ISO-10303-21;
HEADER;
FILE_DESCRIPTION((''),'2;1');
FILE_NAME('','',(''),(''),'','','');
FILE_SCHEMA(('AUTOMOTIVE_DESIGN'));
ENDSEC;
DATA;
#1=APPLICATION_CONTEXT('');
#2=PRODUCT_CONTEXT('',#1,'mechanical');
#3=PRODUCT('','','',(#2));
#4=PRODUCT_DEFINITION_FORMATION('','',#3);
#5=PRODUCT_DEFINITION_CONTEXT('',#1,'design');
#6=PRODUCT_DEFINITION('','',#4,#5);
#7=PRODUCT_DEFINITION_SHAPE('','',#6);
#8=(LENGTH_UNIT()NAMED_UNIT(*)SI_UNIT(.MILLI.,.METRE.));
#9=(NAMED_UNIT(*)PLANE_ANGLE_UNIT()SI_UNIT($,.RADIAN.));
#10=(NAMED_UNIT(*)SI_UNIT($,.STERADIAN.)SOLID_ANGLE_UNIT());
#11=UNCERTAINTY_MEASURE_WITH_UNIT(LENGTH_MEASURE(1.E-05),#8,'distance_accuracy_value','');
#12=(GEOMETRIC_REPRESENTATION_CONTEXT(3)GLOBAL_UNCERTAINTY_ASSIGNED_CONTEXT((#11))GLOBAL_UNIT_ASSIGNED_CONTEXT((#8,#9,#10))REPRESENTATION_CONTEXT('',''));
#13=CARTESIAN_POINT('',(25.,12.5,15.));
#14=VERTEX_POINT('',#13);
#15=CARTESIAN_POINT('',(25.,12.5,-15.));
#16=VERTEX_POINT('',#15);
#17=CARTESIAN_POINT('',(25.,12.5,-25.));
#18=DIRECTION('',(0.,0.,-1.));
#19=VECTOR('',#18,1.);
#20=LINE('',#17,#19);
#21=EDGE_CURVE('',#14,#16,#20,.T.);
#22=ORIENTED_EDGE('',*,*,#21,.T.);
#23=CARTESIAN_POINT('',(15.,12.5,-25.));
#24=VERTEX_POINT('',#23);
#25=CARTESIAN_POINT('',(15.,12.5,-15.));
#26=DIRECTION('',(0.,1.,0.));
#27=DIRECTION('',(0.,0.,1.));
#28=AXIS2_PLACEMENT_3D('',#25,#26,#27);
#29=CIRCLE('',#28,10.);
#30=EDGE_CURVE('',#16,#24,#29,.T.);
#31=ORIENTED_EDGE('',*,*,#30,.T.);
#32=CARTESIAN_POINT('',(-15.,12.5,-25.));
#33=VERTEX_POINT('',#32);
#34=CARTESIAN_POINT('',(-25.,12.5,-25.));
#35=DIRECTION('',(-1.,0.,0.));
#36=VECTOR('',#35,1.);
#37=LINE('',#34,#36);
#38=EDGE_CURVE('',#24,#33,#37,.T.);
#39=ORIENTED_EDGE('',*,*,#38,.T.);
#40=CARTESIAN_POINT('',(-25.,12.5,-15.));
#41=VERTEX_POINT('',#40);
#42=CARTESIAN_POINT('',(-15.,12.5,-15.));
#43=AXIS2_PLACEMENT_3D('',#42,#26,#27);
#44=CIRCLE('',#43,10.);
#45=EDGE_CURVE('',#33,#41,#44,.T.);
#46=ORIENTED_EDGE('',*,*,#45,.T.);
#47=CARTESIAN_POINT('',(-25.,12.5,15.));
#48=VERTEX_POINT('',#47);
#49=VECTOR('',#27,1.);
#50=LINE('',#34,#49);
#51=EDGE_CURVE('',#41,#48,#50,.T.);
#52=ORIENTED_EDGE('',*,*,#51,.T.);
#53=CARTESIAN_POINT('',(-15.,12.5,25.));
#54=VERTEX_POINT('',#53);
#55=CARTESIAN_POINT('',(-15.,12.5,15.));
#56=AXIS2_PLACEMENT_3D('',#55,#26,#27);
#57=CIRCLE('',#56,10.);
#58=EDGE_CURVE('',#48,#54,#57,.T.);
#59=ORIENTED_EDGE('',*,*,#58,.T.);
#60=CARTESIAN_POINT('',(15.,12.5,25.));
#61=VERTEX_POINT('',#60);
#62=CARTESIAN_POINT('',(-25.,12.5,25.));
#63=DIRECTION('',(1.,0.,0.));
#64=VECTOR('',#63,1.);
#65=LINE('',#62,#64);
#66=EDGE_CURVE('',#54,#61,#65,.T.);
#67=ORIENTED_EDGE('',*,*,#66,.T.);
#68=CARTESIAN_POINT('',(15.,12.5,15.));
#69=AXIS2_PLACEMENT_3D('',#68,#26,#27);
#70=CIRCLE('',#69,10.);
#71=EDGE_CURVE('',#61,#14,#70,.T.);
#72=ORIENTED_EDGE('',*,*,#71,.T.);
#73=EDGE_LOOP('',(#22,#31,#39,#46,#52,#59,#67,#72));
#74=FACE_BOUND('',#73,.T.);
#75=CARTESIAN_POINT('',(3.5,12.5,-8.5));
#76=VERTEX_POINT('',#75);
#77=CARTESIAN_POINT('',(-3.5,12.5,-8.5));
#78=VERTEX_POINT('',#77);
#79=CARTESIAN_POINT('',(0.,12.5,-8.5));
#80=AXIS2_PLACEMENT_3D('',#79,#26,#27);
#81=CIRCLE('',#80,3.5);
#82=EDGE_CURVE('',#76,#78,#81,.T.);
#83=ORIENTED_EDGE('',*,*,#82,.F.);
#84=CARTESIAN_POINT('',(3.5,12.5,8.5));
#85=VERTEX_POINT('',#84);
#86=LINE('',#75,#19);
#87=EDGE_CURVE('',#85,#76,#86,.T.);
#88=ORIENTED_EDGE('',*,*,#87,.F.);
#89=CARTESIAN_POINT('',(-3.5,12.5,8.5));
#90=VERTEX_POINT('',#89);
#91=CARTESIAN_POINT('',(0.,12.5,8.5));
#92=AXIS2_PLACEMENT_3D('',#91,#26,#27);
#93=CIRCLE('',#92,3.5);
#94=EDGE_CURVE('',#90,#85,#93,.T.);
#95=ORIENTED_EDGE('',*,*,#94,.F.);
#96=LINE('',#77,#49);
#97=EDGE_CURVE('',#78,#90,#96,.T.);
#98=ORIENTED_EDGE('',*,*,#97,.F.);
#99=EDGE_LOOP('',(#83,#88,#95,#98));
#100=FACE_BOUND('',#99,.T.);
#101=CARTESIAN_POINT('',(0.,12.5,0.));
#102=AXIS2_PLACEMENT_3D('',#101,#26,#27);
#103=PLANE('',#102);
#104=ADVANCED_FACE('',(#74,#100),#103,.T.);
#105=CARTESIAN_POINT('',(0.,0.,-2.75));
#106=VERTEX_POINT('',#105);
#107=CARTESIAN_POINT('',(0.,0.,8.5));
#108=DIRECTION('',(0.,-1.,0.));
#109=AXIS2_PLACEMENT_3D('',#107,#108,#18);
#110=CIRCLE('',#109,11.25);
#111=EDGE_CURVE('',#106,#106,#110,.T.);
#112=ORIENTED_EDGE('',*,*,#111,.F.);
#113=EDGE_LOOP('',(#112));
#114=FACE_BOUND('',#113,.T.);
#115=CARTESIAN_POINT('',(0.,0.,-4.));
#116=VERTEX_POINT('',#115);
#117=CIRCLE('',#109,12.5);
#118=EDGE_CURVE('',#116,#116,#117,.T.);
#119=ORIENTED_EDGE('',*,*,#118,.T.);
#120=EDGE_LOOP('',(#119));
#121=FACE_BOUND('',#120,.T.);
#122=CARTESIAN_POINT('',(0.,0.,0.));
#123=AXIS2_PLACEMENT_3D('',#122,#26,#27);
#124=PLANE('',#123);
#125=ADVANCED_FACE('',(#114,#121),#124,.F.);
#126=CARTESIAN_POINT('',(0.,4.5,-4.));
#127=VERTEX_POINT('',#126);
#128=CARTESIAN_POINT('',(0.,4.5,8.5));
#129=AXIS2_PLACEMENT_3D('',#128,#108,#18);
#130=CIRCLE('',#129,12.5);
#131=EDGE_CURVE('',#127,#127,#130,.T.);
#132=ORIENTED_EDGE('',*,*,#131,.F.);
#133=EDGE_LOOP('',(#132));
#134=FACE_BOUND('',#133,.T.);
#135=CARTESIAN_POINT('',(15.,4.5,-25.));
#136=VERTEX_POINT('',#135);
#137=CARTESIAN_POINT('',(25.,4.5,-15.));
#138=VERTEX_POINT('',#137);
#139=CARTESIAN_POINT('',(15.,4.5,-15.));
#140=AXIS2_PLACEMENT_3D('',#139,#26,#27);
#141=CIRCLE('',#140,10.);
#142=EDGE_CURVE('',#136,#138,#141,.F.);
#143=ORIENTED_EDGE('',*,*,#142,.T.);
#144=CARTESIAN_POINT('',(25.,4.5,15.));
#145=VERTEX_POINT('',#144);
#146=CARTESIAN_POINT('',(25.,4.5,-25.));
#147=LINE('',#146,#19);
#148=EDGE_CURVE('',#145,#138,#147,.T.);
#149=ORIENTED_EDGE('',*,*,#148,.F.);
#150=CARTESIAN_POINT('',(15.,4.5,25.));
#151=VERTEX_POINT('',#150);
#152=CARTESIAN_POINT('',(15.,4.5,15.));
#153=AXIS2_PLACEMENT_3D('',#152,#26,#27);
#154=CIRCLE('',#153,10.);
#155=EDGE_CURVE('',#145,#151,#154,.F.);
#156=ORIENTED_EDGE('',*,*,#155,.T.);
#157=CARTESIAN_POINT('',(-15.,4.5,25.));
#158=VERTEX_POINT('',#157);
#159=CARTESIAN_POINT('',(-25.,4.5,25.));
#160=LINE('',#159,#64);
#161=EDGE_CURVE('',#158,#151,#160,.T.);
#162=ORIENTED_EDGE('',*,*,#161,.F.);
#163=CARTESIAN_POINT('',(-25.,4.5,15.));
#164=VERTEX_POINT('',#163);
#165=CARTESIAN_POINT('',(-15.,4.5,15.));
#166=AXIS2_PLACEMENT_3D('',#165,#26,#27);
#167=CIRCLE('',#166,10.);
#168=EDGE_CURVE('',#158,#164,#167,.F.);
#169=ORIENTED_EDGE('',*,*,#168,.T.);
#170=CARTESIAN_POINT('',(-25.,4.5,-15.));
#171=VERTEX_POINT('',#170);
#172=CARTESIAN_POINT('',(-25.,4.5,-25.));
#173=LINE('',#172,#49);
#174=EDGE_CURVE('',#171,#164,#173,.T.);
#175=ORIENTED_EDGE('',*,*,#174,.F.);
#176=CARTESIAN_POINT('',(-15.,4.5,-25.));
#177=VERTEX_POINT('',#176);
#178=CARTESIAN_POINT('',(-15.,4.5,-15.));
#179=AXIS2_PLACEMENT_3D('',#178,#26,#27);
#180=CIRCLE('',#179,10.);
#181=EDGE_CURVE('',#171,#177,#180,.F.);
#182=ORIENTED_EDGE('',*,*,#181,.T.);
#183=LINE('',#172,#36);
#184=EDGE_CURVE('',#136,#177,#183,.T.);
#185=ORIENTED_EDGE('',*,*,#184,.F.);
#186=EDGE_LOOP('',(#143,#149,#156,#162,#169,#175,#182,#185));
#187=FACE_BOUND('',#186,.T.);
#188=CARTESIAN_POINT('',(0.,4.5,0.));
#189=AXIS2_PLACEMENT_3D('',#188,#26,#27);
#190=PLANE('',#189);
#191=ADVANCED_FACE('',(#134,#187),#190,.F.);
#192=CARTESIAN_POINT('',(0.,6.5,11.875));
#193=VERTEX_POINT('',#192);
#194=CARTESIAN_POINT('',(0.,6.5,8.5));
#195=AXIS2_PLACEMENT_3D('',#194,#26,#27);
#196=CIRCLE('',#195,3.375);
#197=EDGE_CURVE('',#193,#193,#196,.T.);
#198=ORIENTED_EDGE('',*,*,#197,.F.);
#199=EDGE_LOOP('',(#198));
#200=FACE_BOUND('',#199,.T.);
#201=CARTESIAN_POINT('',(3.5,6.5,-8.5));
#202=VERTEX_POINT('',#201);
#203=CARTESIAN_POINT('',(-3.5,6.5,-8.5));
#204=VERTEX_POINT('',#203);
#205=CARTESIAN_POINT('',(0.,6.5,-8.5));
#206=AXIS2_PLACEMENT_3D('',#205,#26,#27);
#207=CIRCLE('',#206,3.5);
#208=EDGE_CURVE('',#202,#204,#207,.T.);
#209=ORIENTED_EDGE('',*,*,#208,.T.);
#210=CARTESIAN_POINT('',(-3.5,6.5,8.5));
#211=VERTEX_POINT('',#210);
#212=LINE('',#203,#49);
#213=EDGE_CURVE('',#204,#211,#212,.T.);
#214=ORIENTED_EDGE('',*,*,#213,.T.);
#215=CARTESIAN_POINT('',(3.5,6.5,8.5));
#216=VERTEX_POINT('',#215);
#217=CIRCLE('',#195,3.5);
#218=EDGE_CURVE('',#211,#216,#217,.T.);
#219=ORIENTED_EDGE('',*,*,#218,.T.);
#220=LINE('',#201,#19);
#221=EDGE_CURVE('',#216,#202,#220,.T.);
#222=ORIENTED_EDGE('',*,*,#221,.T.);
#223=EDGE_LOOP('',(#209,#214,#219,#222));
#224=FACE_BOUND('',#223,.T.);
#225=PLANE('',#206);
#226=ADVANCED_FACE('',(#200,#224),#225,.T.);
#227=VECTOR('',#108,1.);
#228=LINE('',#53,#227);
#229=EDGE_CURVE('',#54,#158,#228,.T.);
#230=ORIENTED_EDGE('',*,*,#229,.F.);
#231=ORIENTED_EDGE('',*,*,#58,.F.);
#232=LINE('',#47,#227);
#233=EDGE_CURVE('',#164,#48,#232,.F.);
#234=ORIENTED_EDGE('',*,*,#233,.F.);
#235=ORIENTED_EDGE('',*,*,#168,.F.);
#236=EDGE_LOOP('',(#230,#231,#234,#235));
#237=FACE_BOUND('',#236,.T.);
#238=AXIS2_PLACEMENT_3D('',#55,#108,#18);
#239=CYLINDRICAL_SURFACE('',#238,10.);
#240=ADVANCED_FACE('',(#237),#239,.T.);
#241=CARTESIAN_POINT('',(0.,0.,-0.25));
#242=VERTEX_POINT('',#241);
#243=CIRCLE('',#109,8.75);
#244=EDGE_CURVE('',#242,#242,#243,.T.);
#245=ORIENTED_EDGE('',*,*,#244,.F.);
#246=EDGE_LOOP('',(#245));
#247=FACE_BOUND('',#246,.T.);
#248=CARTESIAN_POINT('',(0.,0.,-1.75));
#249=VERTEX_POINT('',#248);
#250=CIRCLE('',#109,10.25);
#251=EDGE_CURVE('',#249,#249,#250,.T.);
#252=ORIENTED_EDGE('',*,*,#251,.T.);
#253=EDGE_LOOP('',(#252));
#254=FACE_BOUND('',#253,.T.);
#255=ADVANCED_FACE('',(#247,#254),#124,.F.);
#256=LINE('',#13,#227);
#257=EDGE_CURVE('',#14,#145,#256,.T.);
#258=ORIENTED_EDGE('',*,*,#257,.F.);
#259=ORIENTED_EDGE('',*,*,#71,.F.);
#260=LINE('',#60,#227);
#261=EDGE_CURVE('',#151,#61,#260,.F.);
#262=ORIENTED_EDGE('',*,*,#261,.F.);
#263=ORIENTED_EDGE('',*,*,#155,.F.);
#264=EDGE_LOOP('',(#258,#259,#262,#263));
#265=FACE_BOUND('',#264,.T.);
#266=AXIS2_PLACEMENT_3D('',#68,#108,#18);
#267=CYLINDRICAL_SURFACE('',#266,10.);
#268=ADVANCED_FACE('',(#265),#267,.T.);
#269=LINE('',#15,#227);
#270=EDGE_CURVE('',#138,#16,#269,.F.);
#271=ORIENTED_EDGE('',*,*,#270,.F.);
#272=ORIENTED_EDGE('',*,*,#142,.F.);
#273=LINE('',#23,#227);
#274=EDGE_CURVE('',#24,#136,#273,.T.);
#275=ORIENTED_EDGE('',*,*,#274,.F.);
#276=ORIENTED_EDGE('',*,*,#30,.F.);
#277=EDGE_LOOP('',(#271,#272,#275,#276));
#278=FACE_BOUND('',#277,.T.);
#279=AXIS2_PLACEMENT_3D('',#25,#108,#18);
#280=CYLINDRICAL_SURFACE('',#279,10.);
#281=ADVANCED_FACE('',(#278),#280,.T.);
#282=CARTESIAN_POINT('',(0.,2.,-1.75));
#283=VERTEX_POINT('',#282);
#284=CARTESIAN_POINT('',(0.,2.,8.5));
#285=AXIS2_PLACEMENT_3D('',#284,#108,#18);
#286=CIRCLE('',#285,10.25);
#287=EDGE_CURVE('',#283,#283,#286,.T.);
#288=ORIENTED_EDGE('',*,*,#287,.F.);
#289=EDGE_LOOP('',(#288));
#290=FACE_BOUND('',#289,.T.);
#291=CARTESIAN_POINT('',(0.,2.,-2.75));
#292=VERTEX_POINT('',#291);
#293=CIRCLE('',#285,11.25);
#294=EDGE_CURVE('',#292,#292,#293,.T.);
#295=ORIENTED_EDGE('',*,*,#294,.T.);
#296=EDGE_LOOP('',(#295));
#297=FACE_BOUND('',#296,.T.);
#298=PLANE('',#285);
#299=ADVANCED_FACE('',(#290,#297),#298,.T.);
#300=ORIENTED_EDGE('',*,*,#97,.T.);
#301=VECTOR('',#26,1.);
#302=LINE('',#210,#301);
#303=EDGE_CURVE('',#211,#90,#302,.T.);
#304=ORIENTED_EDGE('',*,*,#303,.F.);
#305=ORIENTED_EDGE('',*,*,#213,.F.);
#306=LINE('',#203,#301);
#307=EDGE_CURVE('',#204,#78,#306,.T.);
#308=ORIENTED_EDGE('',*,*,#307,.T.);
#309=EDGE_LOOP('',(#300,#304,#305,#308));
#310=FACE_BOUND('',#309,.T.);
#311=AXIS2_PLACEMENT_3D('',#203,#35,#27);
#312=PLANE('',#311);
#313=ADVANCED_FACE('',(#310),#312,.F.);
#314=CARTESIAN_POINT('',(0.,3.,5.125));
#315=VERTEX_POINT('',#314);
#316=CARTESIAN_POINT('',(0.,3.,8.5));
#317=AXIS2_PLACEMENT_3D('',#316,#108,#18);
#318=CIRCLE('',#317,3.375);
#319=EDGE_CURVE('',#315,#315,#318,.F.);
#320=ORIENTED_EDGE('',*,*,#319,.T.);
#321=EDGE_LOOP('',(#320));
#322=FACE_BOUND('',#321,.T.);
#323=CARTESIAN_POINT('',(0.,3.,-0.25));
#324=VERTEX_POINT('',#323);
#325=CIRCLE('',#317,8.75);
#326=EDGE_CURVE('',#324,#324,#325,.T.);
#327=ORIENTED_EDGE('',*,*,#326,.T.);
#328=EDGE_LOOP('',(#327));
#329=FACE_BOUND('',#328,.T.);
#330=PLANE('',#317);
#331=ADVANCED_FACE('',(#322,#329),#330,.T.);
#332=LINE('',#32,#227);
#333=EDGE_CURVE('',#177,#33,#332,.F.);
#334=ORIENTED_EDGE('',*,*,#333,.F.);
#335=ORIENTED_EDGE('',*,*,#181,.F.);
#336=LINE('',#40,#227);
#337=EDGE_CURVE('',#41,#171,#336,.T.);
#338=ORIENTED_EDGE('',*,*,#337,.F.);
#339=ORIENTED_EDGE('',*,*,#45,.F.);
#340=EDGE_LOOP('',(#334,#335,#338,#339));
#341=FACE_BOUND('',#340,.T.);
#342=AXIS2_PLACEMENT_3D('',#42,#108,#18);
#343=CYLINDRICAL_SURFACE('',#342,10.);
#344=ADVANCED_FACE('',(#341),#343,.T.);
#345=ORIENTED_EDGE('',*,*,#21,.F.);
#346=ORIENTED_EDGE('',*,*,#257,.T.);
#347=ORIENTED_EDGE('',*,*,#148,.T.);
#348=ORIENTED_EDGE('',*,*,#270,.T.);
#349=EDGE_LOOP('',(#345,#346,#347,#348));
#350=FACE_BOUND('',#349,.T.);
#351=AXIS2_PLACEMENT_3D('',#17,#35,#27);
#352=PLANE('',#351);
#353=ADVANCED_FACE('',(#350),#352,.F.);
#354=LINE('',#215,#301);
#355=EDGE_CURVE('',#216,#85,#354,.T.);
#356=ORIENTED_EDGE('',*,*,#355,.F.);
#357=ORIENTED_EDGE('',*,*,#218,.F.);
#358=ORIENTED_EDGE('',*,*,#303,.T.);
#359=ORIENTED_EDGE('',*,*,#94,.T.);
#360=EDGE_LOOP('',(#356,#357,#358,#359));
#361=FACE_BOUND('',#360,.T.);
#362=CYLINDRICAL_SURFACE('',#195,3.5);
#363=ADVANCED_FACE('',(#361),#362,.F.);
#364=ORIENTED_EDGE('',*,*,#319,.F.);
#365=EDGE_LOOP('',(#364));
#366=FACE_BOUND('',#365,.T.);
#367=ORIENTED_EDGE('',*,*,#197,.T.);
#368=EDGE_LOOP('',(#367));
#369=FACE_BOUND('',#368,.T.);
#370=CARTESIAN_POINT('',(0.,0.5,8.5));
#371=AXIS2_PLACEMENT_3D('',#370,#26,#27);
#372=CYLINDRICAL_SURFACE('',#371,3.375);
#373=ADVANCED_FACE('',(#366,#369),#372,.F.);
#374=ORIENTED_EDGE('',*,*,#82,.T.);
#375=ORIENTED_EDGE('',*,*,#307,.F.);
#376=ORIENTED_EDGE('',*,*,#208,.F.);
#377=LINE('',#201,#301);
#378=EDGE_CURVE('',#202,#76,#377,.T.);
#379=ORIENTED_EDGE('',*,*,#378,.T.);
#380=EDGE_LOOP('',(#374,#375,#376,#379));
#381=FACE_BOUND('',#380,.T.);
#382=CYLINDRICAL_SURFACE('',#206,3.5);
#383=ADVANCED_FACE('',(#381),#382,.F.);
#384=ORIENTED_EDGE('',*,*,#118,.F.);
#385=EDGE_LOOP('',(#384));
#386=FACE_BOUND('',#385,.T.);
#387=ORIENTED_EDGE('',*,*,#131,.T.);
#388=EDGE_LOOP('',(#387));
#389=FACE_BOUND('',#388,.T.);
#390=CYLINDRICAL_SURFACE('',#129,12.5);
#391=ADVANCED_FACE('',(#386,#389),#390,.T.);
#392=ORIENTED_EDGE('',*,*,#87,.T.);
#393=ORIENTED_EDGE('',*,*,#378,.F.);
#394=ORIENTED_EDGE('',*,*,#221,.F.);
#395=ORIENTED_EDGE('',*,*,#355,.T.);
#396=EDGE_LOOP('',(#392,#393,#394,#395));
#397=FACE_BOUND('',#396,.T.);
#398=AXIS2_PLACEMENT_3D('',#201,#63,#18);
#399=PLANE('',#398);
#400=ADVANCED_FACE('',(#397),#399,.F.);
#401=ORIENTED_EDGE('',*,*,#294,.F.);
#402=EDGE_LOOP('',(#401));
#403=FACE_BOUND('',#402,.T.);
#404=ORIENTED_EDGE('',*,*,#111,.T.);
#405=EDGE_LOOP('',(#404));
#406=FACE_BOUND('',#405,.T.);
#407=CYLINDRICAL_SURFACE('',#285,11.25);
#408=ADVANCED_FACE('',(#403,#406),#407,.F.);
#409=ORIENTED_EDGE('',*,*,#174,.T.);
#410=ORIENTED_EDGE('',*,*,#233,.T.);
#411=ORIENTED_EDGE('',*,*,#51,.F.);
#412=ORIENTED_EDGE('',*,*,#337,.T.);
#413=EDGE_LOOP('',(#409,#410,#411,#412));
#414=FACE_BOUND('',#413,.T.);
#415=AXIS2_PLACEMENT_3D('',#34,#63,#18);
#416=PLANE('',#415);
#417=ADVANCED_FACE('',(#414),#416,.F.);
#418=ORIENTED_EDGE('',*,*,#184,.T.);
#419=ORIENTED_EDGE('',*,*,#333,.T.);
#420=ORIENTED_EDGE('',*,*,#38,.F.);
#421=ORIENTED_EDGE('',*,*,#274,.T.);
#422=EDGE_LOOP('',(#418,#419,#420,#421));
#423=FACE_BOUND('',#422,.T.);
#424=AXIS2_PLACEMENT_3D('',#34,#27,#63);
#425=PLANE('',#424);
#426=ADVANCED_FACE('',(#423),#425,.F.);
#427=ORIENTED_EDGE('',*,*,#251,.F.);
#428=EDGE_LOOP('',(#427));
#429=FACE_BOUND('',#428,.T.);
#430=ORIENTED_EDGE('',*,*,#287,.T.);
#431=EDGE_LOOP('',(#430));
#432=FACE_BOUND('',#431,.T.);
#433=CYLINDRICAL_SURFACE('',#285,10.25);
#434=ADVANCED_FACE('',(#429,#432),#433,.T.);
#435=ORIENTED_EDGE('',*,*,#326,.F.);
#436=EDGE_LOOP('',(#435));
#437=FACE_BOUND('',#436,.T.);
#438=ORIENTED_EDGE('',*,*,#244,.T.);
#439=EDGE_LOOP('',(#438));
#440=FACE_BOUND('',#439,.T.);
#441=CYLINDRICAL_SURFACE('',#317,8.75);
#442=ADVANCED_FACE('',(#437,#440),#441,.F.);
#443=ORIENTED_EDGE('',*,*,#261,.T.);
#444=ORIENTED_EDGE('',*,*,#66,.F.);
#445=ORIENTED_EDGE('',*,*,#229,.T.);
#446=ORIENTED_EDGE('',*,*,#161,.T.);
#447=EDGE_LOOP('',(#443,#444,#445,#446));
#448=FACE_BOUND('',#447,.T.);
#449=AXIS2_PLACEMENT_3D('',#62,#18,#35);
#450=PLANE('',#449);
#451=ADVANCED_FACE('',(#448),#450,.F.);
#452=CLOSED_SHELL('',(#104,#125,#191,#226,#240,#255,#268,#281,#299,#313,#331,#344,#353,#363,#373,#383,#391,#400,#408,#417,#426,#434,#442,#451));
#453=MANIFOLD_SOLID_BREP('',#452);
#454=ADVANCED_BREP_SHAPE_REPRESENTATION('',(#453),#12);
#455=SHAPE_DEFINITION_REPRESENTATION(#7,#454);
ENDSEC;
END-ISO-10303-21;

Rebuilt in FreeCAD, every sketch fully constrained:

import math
import FreeCAD as App
import Part
import Sketcher

V = App.Vector
Q = App.Units.Quantity


def edges_at(feature, points):
    """Names of the edges that pass closest to the given points."""
    edges = feature.Shape.Edges
    near = lambda p: min(range(len(edges)), key=lambda i: edges[i].distToShape(Part.Vertex(*p))[0])
    return sorted({f"Edge{near(p) + 1}" for p in points})


def add_polygon(sketch, points):
    """Adds a closed chain of lines whose ends are joined by coincident constraints."""
    first, n = sketch.GeometryCount, len(points)
    for a, b in zip(points, points[1:] + points[:1]):
        sketch.addGeometry(Part.LineSegment(App.Vector(*a, 0), App.Vector(*b, 0)), False)
    for i in range(n):
        sketch.addConstraint(Sketcher.Constraint("Coincident", first + i, 2, first + (i + 1) % n, 1))

doc = App.newDocument("Part")
body = doc.addObject("PartDesign::Body", "Body")

# Sketch on XZ plane
sketch1 = body.newObject("Sketcher::SketchObject", "Sketch")
sketch1.AttachmentSupport = (doc.getObject("XZ_Plane"), [""])
sketch1.MapMode = "FlatFace"
add_polygon(sketch1, [(-25, -25), (-25, 25), (25, 25), (25, -25)])  # lines 0-3
sketch1.addConstraint([
    Sketcher.Constraint("Vertical", 0),
    Sketcher.Constraint("Horizontal", 1),
    Sketcher.Constraint("Vertical", 2),
    Sketcher.Constraint("Horizontal", 3),
    Sketcher.Constraint("Symmetric", 0, 2, 2, 2, -1, 1),
    Sketcher.Constraint("Equal", 3, 0),
    Sketcher.Constraint("DistanceX", 1, 1, 1, 2, Q("50 mm")),
])
pad1 = body.newObject("PartDesign::Pad", "Pad")
pad1.Profile = sketch1
pad1.Length = 12.5
pad1.Reversed = True
doc.recompute()

fillet = body.newObject("PartDesign::Fillet", "Fillet")
fillet.Base = (pad1, edges_at(pad1, [
    (-25, 6.25, -25),
    (25, 6.25, -25),
    (25, 6.25, 25),
    (-25, 6.25, 25),
]))
fillet.Radius = 10

# Sketch on XZ plane
sketch2 = body.newObject("Sketcher::SketchObject", "Sketch001")
sketch2.AttachmentSupport = (doc.getObject("XZ_Plane"), [""])
sketch2.MapMode = "FlatFace"
sketch2.AttachmentOffset = App.Placement(V(0, 0, -12.5), App.Rotation())
sketch2.addGeometry([
    Part.LineSegment(V(3.5, 8.5, 0), V(3.5, -8.5, 0)),
    Part.ArcOfCircle(Part.Circle(V(0, -8.5, 0), V(0, 0, 1), 3.5), math.radians(180), math.radians(360)),
    Part.LineSegment(V(-3.5, -8.5, 0), V(-3.5, 8.5, 0)),
    Part.ArcOfCircle(Part.Circle(V(0, 8.5, 0), V(0, 0, 1), 3.5), math.radians(0), math.radians(180)),
], False)
sketch2.addConstraint([
    Sketcher.Constraint("Tangent", 0, 2, 1, 2),
    Sketcher.Constraint("Tangent", 1, 1, 2, 1),
    Sketcher.Constraint("Tangent", 2, 2, 3, 2),
    Sketcher.Constraint("Tangent", 3, 1, 0, 1),
    Sketcher.Constraint("Vertical", 0),
    Sketcher.Constraint("Vertical", 2),
    Sketcher.Constraint("Symmetric", 1, 3, 3, 3, -1, 1),
    Sketcher.Constraint("Radius", 1, Q("3.5 mm")),
    Sketcher.Constraint("DistanceY", 0, 2, 0, 1, Q("17 mm")),
])
pocket1 = body.newObject("PartDesign::Pocket", "Pocket")
pocket1.Profile = sketch2
pocket1.Length = 6
pocket1.Reversed = True

# Sketch on XZ plane
sketch3 = body.newObject("Sketcher::SketchObject", "Sketch002")
sketch3.AttachmentSupport = (doc.getObject("XZ_Plane"), [""])
sketch3.MapMode = "FlatFace"
sketch3.AttachmentOffset = App.Placement(V(0, 0, -6.5), App.Rotation())
sketch3.addGeometry(Part.Circle(V(0, 8.5, 0), V(0, 0, 1), 3.4), False)
sketch3.addConstraint([
    Sketcher.Constraint("PointOnObject", 0, 3, -2),
    Sketcher.Constraint("Diameter", 0, Q("6.75 mm")),
    Sketcher.Constraint("DistanceY", -1, 1, 0, 3, Q("8.5 mm")),
])
pocket2 = body.newObject("PartDesign::Pocket", "Pocket001")
pocket2.Profile = sketch3
pocket2.Length = 6
pocket2.Reversed = True

# Sketch on XZ plane
sketch4 = body.newObject("Sketcher::SketchObject", "Sketch003")
sketch4.AttachmentSupport = (doc.getObject("XZ_Plane"), [""])
sketch4.MapMode = "FlatFace"
sketch4.addGeometry(Part.Circle(V(0, 8, 0), V(0, 0, 1), 9), False)
sketch4.addConstraint([
    Sketcher.Constraint("PointOnObject", 0, 3, -2),
    Sketcher.Constraint("Diameter", 0, Q("17.5 mm")),
    Sketcher.Constraint("DistanceY", -1, 1, 0, 3, Q("8.5 mm")),
])
pocket3 = body.newObject("PartDesign::Pocket", "Pocket002")
pocket3.Profile = sketch4
pocket3.Length = 3

# Sketch on XZ plane
sketch5 = body.newObject("Sketcher::SketchObject", "Sketch004")
sketch5.AttachmentSupport = (doc.getObject("XZ_Plane"), [""])
sketch5.MapMode = "FlatFace"
add_polygon(sketch5, [(33, -30), (33, 30), (-35, 30), (-35, -30)])  # lines 0-3
sketch5.addGeometry(Part.Circle(V(0, 8, 0), V(0, 0, 1), 12), False)  # 4
sketch5.addConstraint([
    Sketcher.Constraint("Vertical", 0),
    Sketcher.Constraint("Horizontal", 1),
    Sketcher.Constraint("Vertical", 2),
    Sketcher.Constraint("Horizontal", 3),
    Sketcher.Constraint("PointOnObject", 4, 3, -2),
    Sketcher.Constraint("Diameter", 4, Q("25 mm")),
    Sketcher.Constraint("DistanceY", -1, 1, 4, 3, Q("8.5 mm")),
    Sketcher.Constraint("DistanceX", 1, 2, 1, 1, Q("67.743251 mm")),
    Sketcher.Constraint("DistanceY", 0, 1, 0, 2, Q("59.124249 mm")),
    Sketcher.Constraint("DistanceX", -1, 1, 0, 2, Q("32.68914 mm")),
    Sketcher.Constraint("DistanceY", -1, 1, 0, 2, Q("29.614679 mm")),
])
pocket4 = body.newObject("PartDesign::Pocket", "Pocket003")
pocket4.Profile = sketch5
pocket4.Length = 4.5

# Sketch on XZ plane
sketch6 = body.newObject("Sketcher::SketchObject", "Sketch005")
sketch6.AttachmentSupport = (doc.getObject("XZ_Plane"), [""])
sketch6.MapMode = "FlatFace"
sketch6.addGeometry([
    Part.Circle(V(0, 8, 0), V(0, 0, 1), 11),
    Part.Circle(V(0, 8, 0), V(0, 0, 1), 10),
], False)
sketch6.addConstraint([
    Sketcher.Constraint("Coincident", 1, 3, 0, 3),
    Sketcher.Constraint("PointOnObject", 0, 3, -2),
    Sketcher.Constraint("Diameter", 0, Q("22.5 mm")),
    Sketcher.Constraint("Diameter", 1, Q("20.5 mm")),
    Sketcher.Constraint("DistanceY", -1, 1, 0, 3, Q("8.5 mm")),
])
pocket5 = body.newObject("PartDesign::Pocket", "Pocket004")
pocket5.Profile = sketch6
pocket5.Length = 2

doc.recompute()
